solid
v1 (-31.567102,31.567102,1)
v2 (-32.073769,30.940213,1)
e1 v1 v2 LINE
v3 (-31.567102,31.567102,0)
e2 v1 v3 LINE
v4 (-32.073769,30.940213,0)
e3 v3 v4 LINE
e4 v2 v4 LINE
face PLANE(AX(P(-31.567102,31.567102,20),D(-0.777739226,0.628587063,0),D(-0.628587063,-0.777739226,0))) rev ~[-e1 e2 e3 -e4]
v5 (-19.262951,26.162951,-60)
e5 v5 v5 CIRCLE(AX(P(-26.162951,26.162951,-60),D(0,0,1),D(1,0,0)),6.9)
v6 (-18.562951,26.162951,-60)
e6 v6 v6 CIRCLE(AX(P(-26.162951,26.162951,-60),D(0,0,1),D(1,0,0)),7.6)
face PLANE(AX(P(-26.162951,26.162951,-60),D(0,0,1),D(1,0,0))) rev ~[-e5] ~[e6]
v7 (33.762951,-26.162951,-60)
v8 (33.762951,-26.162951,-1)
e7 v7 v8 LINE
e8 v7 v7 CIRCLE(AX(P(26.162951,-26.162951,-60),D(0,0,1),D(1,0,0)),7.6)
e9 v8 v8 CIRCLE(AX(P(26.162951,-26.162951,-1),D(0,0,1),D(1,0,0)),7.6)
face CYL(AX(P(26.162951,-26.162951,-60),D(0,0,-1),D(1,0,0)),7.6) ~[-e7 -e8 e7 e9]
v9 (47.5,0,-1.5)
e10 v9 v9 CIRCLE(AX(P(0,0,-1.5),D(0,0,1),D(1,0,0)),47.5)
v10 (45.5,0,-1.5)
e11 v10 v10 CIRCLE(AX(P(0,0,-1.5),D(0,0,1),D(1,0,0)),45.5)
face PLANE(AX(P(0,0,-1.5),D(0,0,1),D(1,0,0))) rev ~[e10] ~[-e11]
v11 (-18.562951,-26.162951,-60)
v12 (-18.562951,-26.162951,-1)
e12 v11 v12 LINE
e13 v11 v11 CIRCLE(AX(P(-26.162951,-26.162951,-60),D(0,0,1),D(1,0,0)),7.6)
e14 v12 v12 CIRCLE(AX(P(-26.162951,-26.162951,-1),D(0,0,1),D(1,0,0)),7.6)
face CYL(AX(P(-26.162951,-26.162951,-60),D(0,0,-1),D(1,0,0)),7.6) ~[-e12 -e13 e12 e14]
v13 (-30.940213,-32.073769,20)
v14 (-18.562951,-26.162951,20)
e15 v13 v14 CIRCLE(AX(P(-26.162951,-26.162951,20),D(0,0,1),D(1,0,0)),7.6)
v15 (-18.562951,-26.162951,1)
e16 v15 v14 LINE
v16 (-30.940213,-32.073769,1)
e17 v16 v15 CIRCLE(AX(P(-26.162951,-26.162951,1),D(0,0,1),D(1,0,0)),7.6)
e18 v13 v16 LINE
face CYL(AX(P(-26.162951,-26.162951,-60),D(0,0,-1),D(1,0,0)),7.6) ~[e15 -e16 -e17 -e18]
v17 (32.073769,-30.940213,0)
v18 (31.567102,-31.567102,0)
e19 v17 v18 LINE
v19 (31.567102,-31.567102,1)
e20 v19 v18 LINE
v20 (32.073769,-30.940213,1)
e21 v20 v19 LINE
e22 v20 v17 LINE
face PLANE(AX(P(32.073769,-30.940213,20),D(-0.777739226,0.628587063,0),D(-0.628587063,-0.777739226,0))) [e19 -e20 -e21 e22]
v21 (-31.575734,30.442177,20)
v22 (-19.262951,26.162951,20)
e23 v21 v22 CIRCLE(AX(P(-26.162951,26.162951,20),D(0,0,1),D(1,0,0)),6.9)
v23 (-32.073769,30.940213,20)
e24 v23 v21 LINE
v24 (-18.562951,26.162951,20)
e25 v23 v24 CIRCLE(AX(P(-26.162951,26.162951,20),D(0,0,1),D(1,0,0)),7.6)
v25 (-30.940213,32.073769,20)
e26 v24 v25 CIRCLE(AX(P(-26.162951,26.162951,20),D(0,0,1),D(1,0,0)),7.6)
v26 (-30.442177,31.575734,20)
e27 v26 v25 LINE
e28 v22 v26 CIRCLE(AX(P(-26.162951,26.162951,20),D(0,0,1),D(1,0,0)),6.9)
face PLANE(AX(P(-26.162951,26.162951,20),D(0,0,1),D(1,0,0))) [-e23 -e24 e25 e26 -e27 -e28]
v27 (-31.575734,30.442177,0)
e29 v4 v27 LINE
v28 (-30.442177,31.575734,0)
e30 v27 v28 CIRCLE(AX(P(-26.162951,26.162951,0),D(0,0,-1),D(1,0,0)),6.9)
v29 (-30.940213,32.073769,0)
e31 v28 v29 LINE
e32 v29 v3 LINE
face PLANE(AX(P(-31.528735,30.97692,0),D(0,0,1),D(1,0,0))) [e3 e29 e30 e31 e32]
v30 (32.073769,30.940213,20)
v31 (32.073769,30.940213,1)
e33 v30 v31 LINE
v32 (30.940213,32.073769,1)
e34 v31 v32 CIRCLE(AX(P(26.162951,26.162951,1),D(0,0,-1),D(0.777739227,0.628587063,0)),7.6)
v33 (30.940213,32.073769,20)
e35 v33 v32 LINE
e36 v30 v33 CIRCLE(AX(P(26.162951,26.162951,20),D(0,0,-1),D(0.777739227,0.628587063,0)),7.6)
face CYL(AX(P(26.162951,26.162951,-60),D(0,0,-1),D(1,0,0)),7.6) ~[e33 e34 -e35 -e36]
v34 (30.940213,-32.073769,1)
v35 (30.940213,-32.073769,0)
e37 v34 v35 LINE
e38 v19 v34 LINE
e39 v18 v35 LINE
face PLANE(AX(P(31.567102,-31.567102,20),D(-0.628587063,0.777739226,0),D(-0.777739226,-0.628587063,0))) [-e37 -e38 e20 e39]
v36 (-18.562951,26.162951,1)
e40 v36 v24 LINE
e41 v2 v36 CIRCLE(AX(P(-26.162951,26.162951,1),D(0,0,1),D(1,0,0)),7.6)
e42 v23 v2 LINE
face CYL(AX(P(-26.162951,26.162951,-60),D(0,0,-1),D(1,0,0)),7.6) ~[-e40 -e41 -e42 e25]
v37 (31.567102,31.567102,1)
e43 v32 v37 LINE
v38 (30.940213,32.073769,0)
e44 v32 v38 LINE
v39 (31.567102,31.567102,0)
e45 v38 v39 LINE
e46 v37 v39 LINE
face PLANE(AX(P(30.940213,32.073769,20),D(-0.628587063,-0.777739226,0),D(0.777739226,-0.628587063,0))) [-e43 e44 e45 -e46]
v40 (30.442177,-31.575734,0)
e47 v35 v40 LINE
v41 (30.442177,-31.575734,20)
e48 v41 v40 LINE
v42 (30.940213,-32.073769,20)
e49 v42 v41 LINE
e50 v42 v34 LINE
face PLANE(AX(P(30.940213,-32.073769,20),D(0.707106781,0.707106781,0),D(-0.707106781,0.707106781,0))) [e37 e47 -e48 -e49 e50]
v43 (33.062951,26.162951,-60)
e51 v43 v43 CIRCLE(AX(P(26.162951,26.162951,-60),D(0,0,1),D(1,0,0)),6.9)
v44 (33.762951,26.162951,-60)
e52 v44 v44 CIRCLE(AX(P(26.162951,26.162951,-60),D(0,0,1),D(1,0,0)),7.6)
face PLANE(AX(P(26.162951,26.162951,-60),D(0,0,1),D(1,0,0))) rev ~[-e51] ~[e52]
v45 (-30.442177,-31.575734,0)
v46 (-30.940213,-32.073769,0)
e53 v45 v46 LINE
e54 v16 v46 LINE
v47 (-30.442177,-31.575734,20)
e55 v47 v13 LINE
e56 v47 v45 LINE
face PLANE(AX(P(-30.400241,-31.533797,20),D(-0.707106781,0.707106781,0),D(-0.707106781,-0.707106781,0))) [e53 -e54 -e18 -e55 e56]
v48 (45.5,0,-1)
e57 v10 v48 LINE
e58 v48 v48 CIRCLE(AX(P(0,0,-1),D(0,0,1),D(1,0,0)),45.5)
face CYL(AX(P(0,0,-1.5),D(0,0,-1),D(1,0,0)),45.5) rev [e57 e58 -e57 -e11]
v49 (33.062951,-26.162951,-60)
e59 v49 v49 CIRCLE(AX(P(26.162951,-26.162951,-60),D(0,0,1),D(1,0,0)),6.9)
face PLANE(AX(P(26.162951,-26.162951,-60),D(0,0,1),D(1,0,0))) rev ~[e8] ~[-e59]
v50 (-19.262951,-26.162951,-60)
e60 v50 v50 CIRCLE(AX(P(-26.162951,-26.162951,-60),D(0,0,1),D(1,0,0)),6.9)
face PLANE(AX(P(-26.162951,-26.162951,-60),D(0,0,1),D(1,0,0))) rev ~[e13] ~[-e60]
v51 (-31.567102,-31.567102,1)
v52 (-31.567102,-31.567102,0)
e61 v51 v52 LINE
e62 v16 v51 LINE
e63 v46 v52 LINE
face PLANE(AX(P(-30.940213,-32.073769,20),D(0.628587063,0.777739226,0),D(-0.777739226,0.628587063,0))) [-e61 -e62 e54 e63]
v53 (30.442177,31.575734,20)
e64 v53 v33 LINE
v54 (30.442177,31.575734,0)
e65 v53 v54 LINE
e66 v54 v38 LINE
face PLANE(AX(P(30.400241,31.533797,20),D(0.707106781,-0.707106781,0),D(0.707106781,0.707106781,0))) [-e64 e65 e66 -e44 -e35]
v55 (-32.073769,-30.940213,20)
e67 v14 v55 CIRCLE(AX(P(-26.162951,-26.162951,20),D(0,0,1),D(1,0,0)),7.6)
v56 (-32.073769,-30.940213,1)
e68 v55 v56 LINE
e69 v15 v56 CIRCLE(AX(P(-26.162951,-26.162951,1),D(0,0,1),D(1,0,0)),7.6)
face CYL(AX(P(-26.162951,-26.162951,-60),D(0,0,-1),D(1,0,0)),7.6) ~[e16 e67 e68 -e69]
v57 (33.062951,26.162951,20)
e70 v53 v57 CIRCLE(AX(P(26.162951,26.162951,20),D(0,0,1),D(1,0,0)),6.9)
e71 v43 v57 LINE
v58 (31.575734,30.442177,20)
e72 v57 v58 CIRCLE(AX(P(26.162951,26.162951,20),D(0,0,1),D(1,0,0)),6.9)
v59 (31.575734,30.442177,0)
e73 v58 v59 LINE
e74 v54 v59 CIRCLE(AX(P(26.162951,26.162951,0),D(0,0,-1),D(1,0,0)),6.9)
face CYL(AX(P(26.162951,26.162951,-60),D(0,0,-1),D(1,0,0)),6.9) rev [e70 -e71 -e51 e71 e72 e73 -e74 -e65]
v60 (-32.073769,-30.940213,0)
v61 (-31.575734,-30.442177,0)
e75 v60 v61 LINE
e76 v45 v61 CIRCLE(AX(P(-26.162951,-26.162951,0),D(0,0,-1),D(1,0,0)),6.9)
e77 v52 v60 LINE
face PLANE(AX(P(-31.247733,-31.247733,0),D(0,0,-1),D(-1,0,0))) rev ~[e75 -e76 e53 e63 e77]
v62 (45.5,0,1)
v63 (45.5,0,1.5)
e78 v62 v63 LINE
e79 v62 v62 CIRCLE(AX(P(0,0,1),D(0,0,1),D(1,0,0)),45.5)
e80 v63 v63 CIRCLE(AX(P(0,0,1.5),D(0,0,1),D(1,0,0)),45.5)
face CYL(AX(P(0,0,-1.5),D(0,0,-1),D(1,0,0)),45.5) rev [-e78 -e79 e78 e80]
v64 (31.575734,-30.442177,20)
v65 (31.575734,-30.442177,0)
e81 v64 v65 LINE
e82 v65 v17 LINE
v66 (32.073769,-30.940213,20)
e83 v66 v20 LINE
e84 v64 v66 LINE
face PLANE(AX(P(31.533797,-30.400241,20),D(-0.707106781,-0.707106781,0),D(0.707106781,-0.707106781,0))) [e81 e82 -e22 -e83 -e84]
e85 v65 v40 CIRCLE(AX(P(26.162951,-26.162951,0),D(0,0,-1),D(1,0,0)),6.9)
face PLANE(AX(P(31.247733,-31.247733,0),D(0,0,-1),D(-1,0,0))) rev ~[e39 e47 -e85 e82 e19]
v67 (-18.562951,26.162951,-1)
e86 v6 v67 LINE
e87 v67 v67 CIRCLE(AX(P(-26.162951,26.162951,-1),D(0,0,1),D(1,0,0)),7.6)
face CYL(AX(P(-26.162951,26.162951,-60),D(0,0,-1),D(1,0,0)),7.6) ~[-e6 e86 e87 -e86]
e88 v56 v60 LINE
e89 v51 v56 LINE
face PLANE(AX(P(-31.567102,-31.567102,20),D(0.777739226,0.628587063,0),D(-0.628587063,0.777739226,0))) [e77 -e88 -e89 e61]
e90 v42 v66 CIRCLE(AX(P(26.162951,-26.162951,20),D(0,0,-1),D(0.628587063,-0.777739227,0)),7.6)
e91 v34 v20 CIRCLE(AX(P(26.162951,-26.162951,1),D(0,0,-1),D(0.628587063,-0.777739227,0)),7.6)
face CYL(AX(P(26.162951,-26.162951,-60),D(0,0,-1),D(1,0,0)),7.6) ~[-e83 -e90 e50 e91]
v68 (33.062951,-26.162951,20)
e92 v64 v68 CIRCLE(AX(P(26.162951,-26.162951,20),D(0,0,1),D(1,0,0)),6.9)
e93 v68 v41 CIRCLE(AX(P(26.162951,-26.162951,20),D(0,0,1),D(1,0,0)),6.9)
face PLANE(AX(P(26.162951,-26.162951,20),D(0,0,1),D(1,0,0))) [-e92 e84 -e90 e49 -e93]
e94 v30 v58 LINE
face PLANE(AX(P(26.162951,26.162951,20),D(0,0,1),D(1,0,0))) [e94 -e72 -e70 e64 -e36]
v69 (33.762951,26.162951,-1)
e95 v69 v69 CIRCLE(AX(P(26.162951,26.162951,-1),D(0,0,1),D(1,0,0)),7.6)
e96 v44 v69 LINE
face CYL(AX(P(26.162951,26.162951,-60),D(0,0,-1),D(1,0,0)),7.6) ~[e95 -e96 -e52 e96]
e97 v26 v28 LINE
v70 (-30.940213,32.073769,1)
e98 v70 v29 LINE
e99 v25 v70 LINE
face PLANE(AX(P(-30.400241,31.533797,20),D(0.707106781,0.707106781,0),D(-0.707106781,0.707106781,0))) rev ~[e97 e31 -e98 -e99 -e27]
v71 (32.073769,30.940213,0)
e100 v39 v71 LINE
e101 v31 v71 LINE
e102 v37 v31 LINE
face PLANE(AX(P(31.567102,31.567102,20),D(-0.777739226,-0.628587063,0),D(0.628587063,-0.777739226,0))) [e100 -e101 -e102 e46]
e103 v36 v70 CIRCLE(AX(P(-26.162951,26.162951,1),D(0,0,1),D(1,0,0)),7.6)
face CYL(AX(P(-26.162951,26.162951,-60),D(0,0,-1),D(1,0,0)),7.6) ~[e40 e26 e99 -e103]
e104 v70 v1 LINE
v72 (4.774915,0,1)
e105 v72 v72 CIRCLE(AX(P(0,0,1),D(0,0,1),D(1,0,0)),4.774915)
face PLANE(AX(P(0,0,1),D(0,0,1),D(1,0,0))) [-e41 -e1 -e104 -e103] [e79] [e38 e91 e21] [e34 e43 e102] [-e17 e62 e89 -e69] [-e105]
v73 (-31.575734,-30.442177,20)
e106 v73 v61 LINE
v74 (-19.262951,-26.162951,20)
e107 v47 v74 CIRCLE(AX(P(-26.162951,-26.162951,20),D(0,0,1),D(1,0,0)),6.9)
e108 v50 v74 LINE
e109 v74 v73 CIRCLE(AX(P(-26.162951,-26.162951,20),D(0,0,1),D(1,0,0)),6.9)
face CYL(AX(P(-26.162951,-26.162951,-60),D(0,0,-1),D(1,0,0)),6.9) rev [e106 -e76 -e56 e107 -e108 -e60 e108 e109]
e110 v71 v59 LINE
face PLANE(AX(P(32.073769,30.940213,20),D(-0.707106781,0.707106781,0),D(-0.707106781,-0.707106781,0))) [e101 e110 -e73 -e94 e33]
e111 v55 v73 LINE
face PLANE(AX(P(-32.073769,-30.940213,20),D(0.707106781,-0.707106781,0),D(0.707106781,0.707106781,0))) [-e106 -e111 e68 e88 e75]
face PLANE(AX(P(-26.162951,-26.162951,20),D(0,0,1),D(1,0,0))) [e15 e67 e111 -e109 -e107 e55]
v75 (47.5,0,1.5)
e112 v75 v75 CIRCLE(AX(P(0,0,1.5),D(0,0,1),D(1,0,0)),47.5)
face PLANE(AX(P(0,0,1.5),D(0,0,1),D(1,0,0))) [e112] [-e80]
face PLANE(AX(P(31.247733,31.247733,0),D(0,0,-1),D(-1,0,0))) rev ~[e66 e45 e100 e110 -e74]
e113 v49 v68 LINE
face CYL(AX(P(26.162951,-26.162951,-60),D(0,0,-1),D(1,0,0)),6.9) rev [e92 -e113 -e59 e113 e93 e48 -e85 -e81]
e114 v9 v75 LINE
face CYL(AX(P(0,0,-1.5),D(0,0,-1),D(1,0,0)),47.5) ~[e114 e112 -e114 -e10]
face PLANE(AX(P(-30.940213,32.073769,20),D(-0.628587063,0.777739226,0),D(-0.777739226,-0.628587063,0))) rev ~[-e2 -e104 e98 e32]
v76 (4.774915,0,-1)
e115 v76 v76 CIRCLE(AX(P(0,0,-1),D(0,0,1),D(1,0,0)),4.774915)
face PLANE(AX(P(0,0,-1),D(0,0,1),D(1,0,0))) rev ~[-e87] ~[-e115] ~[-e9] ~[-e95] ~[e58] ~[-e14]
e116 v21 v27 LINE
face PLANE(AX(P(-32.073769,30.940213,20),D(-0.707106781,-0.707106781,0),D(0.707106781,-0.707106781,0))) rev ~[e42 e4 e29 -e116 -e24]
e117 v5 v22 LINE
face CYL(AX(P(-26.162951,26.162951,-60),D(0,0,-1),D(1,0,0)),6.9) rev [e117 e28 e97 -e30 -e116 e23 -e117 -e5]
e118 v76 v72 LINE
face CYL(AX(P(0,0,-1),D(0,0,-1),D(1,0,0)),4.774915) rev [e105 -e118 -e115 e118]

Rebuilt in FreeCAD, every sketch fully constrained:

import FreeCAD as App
import Part
import Sketcher
Q = App.Units.Quantity

doc = App.newDocument("Part")
params = doc.addObject("Spreadsheet::Sheet", "Params")
for row, (alias, value) in enumerate([
    ("sketch1_diameter", "91 mm"),
    ("sketch1_diameter2", "15.2 mm"),
    ("pad1_length", "1 mm"),
    ("pad1_length2", "1 mm"),
    ("sketch2_diameter", "95 mm"),
    ("sketch2_diameter2", "91 mm"),
    ("pad2_length", "1.5 mm"),
    ("pad2_length2", "1.5 mm"),
    ("sketch3_diameter", "15.2 mm"),
    ("sketch3_diameter2", "13.8 mm"),
    ("pad3_length", "20 mm"),
    ("pad3_length2", "60 mm"),
    ("pocket1_length", "20 mm"),
], start=1):
    params.set(f"A{row}", alias)
    params.set(f"B{row}", "=" + value)
    params.setAlias(f"B{row}", alias)

body = doc.addObject("PartDesign::Body", "Body")

# Sketch on XY plane
sketch1 = doc.addObject("Sketcher::SketchObject", "Sketch")
body.addObject(sketch1)
sketch1.AttachmentSupport = (doc.XY_Plane, [""])
sketch1.MapMode = "FlatFace"
sketch1.addGeometry([
    Part.Circle(App.Vector(0, 0, 0), App.Vector(0, 0, 1), 45.5),  # 0
    Part.Circle(App.Vector(-26.162951, -26.162951, 0), App.Vector(0, 0, 1), 7.6),  # 1
    Part.Circle(App.Vector(26.162951, -26.162951, 0), App.Vector(0, 0, 1), 7.6),  # 2
    Part.Circle(App.Vector(0, 0, 0), App.Vector(0, 0, 1), 4.774915),  # 3
    Part.Circle(App.Vector(-26.162951, 26.162951, 0), App.Vector(0, 0, 1), 7.6),  # 4
    Part.Circle(App.Vector(26.162951, 26.162951, 0), App.Vector(0, 0, 1), 7.6),  # 5
], False)
sketch1.addConstraint([
    Sketcher.Constraint("Coincident", 0, 3, -1, 1),
    Sketcher.Constraint("Coincident", 3, 3, -1, 1),
    Sketcher.Constraint("Equal", 1, 2),
    Sketcher.Constraint("Equal", 2, 4),
    Sketcher.Constraint("Equal", 4, 5),
    Sketcher.Constraint("Symmetric", 2, 3, 4, 3, -1, 1),
    Sketcher.Constraint("Symmetric", 1, 3, 5, 3, -1, 1),
    Sketcher.Constraint("Symmetric", 1, 3, 2, 3, -2),
    Sketcher.Constraint("Diameter", 0, Q("91 mm")),
    Sketcher.Constraint("Diameter", 1, Q("15.2 mm")),
    Sketcher.Constraint("Diameter", 3, Q("9.54983 mm")),
    Sketcher.Constraint("DistanceX", 1, 3, 2, 3, Q("52.325902 mm")),
    Sketcher.Constraint("DistanceY", 1, 3, 4, 3, Q("52.325902 mm")),
])
sketch1.setExpression("Constraints[8]", "Params.sketch1_diameter")
sketch1.setExpression("Constraints[9]", "Params.sketch1_diameter2")
pad1 = doc.addObject("PartDesign::Pad", "Pad")
body.addObject(pad1)
pad1.Profile = sketch1
pad1.Type = "TwoLengths"
pad1.setExpression("Length", "Params.pad1_length")
pad1.setExpression("Length2", "Params.pad1_length2")

# Sketch on XY plane
sketch2 = doc.addObject("Sketcher::SketchObject", "Sketch001")
body.addObject(sketch2)
sketch2.AttachmentSupport = (doc.XY_Plane, [""])
sketch2.MapMode = "FlatFace"
sketch2.addGeometry([
    Part.Circle(App.Vector(0, 0, 0), App.Vector(0, 0, 1), 47.5),
    Part.Circle(App.Vector(0, 0, 0), App.Vector(0, 0, 1), 45.5),
], False)
sketch2.addConstraint([
    Sketcher.Constraint("Coincident", 0, 3, -1, 1),
    Sketcher.Constraint("Coincident", 1, 3, -1, 1),
    Sketcher.Constraint("Diameter", 0, Q("95 mm")),
    Sketcher.Constraint("Diameter", 1, Q("91 mm")),
])
sketch2.setExpression("Constraints[2]", "Params.sketch2_diameter")
sketch2.setExpression("Constraints[3]", "Params.sketch2_diameter2")
pad2 = doc.addObject("PartDesign::Pad", "Pad001")
body.addObject(pad2)
pad2.Profile = sketch2
pad2.Type = "TwoLengths"
pad2.setExpression("Length", "Params.pad2_length")
pad2.setExpression("Length2", "Params.pad2_length2")

# Sketch on XY plane
sketch3 = doc.addObject("Sketcher::SketchObject", "Sketch002")
body.addObject(sketch3)
sketch3.AttachmentSupport = (doc.XY_Plane, [""])
sketch3.MapMode = "FlatFace"
sketch3.addGeometry([
    Part.Circle(App.Vector(-26.162951, 26.162951, 0), App.Vector(0, 0, 1), 7.6),  # 0
    Part.Circle(App.Vector(-26.162951, 26.162951, 0), App.Vector(0, 0, 1), 6.9),  # 1
    Part.Circle(App.Vector(26.162951, 26.162951, 0), App.Vector(0, 0, 1), 7.6),  # 2
    Part.Circle(App.Vector(26.162951, 26.162951, 0), App.Vector(0, 0, 1), 6.9),  # 3
    Part.Circle(App.Vector(26.162951, -26.162951, 0), App.Vector(0, 0, 1), 7.6),  # 4
    Part.Circle(App.Vector(26.162951, -26.162951, 0), App.Vector(0, 0, 1), 6.9),  # 5
    Part.Circle(App.Vector(-26.162951, -26.162951, 0), App.Vector(0, 0, 1), 7.6),  # 6
    Part.Circle(App.Vector(-26.162951, -26.162951, 0), App.Vector(0, 0, 1), 6.9),  # 7
], False)
sketch3.addConstraint([
    Sketcher.Constraint("Coincident", 1, 3, 0, 3),
    Sketcher.Constraint("Coincident", 3, 3, 2, 3),
    Sketcher.Constraint("Coincident", 5, 3, 4, 3),
    Sketcher.Constraint("Coincident", 7, 3, 6, 3),
    Sketcher.Constraint("Equal", 0, 2),
    Sketcher.Constraint("Equal", 1, 3),
    Sketcher.Constraint("Equal", 2, 4),
    Sketcher.Constraint("Equal", 3, 5),
    Sketcher.Constraint("Equal", 4, 6),
    Sketcher.Constraint("Equal", 5, 7),
    Sketcher.Constraint("Symmetric", 0, 3, 4, 3, -1, 1),
    Sketcher.Constraint("Symmetric", 2, 3, 6, 3, -1, 1),
    Sketcher.Constraint("Symmetric", 0, 3, 2, 3, -2),
    Sketcher.Constraint("Diameter", 0, Q("15.2 mm")),
    Sketcher.Constraint("Diameter", 1, Q("13.8 mm")),
    Sketcher.Constraint("DistanceX", 0, 3, 2, 3, Q("52.325902 mm")),
    Sketcher.Constraint("DistanceY", 4, 3, 2, 3, Q("52.325902 mm")),
])
sketch3.setExpression("Constraints[13]", "Params.sketch3_diameter")
sketch3.setExpression("Constraints[14]", "Params.sketch3_diameter2")
pad3 = doc.addObject("PartDesign::Pad", "Pad002")
body.addObject(pad3)
pad3.Profile = sketch3
pad3.Type = "TwoLengths"
pad3.setExpression("Length", "Params.pad3_length")
pad3.setExpression("Length2", "Params.pad3_length2")

# Sketch on XY plane
sketch4 = doc.addObject("Sketcher::SketchObject", "Sketch003")
body.addObject(sketch4)
sketch4.AttachmentSupport = (doc.XY_Plane, [""])
sketch4.MapMode = "FlatFace"
sketch4.AttachmentOffset = App.Placement(App.Vector(0, 0, 20), App.Rotation())
sketch4.addGeometry([
    Part.LineSegment(App.Vector(-31.533797, 30.400241, 0), App.Vector(-30.967019, 30.967019, 0)),  # 0
    Part.LineSegment(App.Vector(-30.967019, 30.967019, 0), App.Vector(-30.400241, 31.533797, 0)),  # 1
    Part.LineSegment(App.Vector(-30.400241, 31.533797, 0), App.Vector(-30.940213, 32.073769, 0)),  # 2
    Part.LineSegment(App.Vector(-30.940213, 32.073769, 0), App.Vector(-31.567102, 31.567102, 0)),  # 3
    Part.LineSegment(App.Vector(-31.567102, 31.567102, 0), App.Vector(-32.073769, 30.940213, 0)),  # 4
    Part.LineSegment(App.Vector(-32.073769, 30.940213, 0), App.Vector(-31.533797, 30.400241, 0)),  # 5
    Part.LineSegment(App.Vector(31.533797, 30.400241, 0), App.Vector(32.073769, 30.940213, 0)),  # 6
    Part.LineSegment(App.Vector(32.073769, 30.940213, 0), App.Vector(31.567102, 31.567102, 0)),  # 7
    Part.LineSegment(App.Vector(31.567102, 31.567102, 0), App.Vector(30.940213, 32.073769, 0)),  # 8
    Part.LineSegment(App.Vector(30.940213, 32.073769, 0), App.Vector(30.400241, 31.533797, 0)),  # 9
    Part.LineSegment(App.Vector(30.400241, 31.533797, 0), App.Vector(31.533797, 30.400241, 0)),  # 10
    Part.LineSegment(App.Vector(30.400241, -31.533797, 0), App.Vector(30.940213, -32.073769, 0)),  # 11
    Part.LineSegment(App.Vector(30.940213, -32.073769, 0), App.Vector(31.567102, -31.567102, 0)),  # 12
    Part.LineSegment(App.Vector(31.567102, -31.567102, 0), App.Vector(32.073769, -30.940213, 0)),  # 13
    Part.LineSegment(App.Vector(32.073769, -30.940213, 0), App.Vector(31.533797, -30.400241, 0)),  # 14
    Part.LineSegment(App.Vector(31.533797, -30.400241, 0), App.Vector(30.400241, -31.533797, 0)),  # 15
    Part.LineSegment(App.Vector(-31.533797, -30.400241, 0), App.Vector(-32.073769, -30.940213, 0)),  # 16
    Part.LineSegment(App.Vector(-32.073769, -30.940213, 0), App.Vector(-31.567102, -31.567102, 0)),  # 17
    Part.LineSegment(App.Vector(-31.567102, -31.567102, 0), App.Vector(-30.940213, -32.073769, 0)),  # 18
    Part.LineSegment(App.Vector(-30.940213, -32.073769, 0), App.Vector(-30.400241, -31.533797, 0)),  # 19
    Part.LineSegment(App.Vector(-30.400241, -31.533797, 0), App.Vector(-31.533797, -30.400241, 0)),  # 20
], False)
sketch4.addConstraint([
    Sketcher.Constraint("Coincident", 0, 2, 1, 1),
    Sketcher.Constraint("Coincident", 1, 2, 2, 1),
    Sketcher.Constraint("Coincident", 2, 2, 3, 1),
    Sketcher.Constraint("Coincident", 3, 2, 4, 1),
    Sketcher.Constraint("Coincident", 4, 2, 5, 1),
    Sketcher.Constraint("Coincident", 5, 2, 0, 1),
    Sketcher.Constraint("Coincident", 6, 2, 7, 1),
    Sketcher.Constraint("Coincident", 7, 2, 8, 1),
    Sketcher.Constraint("Coincident", 8, 2, 9, 1),
    Sketcher.Constraint("Coincident", 9, 2, 10, 1),
    Sketcher.Constraint("Coincident", 10, 2, 6, 1),
    Sketcher.Constraint("Coincident", 11, 2, 12, 1),
    Sketcher.Constraint("Coincident", 12, 2, 13, 1),
    Sketcher.Constraint("Coincident", 13, 2, 14, 1),
    Sketcher.Constraint("Coincident", 14, 2, 15, 1),
    Sketcher.Constraint("Coincident", 15, 2, 11, 1),
    Sketcher.Constraint("Coincident", 16, 2, 17, 1),
    Sketcher.Constraint("Coincident", 17, 2, 18, 1),
    Sketcher.Constraint("Coincident", 18, 2, 19, 1),
    Sketcher.Constraint("Coincident", 19, 2, 20, 1),
    Sketcher.Constraint("Coincident", 20, 2, 16, 1),
    Sketcher.Constraint("Symmetric", 2, 2, 11, 2, -1, 1),
    Sketcher.Constraint("Symmetric", 3, 2, 12, 2, -1, 1),
    Sketcher.Constraint("Symmetric", 4, 2, 13, 2, -1, 1),
    Sketcher.Constraint("Symmetric", 5, 2, 14, 2, -1, 1),
    Sketcher.Constraint("Symmetric", 1, 2, 15, 2, -1, 1),
    Sketcher.Constraint("Symmetric", 6, 2, 16, 2, -1, 1),
    Sketcher.Constraint("Symmetric", 7, 2, 17, 2, -1, 1),
    Sketcher.Constraint("Symmetric", 8, 2, 18, 2, -1, 1),
    Sketcher.Constraint("Symmetric", 9, 2, 19, 2, -1, 1),
    Sketcher.Constraint("Symmetric", 10, 2, 20, 2, -1, 1),
    Sketcher.Constraint("Symmetric", 4, 2, 6, 2, -2),
    Sketcher.Constraint("Symmetric", 3, 2, 7, 2, -2),
    Sketcher.Constraint("Symmetric", 2, 2, 8, 2, -2),
    Sketcher.Constraint("Symmetric", 1, 2, 9, 2, -2),
    Sketcher.Constraint("Symmetric", 5, 2, 10, 2, -2),
    Sketcher.Constraint("Parallel", 0, 1),
    Sketcher.Constraint("Perpendicular", 1, 2),
    Sketcher.Constraint("Parallel", 2, 5),
    Sketcher.Constraint("Perpendicular", 5, 6),
    Sketcher.Constraint("Perpendicular", 3, 7),
    Sketcher.Constraint("Equal", 0, 1),
    Sketcher.Constraint("Equal", 3, 4),
    Sketcher.Constraint("DistanceX", 5, 2, 7, 2, Q("63.100899 mm")),
    Sketcher.Constraint("DistanceY", 12, 2, 9, 2, Q("63.100899 mm")),
    Sketcher.Constraint("Distance", 3, Q("0.806041 mm")),
    Sketcher.Constraint("Distance", 10, Q("1.603091 mm")),
    Sketcher.Constraint("DistanceX", 0, 2, -1, 1, Q("30.967019 mm")),
])
pocket1 = doc.addObject("PartDesign::Pocket", "Pocket")
body.addObject(pocket1)
pocket1.Profile = sketch4
pocket1.setExpression("Length", "Params.pocket1_length")

doc.recompute()
